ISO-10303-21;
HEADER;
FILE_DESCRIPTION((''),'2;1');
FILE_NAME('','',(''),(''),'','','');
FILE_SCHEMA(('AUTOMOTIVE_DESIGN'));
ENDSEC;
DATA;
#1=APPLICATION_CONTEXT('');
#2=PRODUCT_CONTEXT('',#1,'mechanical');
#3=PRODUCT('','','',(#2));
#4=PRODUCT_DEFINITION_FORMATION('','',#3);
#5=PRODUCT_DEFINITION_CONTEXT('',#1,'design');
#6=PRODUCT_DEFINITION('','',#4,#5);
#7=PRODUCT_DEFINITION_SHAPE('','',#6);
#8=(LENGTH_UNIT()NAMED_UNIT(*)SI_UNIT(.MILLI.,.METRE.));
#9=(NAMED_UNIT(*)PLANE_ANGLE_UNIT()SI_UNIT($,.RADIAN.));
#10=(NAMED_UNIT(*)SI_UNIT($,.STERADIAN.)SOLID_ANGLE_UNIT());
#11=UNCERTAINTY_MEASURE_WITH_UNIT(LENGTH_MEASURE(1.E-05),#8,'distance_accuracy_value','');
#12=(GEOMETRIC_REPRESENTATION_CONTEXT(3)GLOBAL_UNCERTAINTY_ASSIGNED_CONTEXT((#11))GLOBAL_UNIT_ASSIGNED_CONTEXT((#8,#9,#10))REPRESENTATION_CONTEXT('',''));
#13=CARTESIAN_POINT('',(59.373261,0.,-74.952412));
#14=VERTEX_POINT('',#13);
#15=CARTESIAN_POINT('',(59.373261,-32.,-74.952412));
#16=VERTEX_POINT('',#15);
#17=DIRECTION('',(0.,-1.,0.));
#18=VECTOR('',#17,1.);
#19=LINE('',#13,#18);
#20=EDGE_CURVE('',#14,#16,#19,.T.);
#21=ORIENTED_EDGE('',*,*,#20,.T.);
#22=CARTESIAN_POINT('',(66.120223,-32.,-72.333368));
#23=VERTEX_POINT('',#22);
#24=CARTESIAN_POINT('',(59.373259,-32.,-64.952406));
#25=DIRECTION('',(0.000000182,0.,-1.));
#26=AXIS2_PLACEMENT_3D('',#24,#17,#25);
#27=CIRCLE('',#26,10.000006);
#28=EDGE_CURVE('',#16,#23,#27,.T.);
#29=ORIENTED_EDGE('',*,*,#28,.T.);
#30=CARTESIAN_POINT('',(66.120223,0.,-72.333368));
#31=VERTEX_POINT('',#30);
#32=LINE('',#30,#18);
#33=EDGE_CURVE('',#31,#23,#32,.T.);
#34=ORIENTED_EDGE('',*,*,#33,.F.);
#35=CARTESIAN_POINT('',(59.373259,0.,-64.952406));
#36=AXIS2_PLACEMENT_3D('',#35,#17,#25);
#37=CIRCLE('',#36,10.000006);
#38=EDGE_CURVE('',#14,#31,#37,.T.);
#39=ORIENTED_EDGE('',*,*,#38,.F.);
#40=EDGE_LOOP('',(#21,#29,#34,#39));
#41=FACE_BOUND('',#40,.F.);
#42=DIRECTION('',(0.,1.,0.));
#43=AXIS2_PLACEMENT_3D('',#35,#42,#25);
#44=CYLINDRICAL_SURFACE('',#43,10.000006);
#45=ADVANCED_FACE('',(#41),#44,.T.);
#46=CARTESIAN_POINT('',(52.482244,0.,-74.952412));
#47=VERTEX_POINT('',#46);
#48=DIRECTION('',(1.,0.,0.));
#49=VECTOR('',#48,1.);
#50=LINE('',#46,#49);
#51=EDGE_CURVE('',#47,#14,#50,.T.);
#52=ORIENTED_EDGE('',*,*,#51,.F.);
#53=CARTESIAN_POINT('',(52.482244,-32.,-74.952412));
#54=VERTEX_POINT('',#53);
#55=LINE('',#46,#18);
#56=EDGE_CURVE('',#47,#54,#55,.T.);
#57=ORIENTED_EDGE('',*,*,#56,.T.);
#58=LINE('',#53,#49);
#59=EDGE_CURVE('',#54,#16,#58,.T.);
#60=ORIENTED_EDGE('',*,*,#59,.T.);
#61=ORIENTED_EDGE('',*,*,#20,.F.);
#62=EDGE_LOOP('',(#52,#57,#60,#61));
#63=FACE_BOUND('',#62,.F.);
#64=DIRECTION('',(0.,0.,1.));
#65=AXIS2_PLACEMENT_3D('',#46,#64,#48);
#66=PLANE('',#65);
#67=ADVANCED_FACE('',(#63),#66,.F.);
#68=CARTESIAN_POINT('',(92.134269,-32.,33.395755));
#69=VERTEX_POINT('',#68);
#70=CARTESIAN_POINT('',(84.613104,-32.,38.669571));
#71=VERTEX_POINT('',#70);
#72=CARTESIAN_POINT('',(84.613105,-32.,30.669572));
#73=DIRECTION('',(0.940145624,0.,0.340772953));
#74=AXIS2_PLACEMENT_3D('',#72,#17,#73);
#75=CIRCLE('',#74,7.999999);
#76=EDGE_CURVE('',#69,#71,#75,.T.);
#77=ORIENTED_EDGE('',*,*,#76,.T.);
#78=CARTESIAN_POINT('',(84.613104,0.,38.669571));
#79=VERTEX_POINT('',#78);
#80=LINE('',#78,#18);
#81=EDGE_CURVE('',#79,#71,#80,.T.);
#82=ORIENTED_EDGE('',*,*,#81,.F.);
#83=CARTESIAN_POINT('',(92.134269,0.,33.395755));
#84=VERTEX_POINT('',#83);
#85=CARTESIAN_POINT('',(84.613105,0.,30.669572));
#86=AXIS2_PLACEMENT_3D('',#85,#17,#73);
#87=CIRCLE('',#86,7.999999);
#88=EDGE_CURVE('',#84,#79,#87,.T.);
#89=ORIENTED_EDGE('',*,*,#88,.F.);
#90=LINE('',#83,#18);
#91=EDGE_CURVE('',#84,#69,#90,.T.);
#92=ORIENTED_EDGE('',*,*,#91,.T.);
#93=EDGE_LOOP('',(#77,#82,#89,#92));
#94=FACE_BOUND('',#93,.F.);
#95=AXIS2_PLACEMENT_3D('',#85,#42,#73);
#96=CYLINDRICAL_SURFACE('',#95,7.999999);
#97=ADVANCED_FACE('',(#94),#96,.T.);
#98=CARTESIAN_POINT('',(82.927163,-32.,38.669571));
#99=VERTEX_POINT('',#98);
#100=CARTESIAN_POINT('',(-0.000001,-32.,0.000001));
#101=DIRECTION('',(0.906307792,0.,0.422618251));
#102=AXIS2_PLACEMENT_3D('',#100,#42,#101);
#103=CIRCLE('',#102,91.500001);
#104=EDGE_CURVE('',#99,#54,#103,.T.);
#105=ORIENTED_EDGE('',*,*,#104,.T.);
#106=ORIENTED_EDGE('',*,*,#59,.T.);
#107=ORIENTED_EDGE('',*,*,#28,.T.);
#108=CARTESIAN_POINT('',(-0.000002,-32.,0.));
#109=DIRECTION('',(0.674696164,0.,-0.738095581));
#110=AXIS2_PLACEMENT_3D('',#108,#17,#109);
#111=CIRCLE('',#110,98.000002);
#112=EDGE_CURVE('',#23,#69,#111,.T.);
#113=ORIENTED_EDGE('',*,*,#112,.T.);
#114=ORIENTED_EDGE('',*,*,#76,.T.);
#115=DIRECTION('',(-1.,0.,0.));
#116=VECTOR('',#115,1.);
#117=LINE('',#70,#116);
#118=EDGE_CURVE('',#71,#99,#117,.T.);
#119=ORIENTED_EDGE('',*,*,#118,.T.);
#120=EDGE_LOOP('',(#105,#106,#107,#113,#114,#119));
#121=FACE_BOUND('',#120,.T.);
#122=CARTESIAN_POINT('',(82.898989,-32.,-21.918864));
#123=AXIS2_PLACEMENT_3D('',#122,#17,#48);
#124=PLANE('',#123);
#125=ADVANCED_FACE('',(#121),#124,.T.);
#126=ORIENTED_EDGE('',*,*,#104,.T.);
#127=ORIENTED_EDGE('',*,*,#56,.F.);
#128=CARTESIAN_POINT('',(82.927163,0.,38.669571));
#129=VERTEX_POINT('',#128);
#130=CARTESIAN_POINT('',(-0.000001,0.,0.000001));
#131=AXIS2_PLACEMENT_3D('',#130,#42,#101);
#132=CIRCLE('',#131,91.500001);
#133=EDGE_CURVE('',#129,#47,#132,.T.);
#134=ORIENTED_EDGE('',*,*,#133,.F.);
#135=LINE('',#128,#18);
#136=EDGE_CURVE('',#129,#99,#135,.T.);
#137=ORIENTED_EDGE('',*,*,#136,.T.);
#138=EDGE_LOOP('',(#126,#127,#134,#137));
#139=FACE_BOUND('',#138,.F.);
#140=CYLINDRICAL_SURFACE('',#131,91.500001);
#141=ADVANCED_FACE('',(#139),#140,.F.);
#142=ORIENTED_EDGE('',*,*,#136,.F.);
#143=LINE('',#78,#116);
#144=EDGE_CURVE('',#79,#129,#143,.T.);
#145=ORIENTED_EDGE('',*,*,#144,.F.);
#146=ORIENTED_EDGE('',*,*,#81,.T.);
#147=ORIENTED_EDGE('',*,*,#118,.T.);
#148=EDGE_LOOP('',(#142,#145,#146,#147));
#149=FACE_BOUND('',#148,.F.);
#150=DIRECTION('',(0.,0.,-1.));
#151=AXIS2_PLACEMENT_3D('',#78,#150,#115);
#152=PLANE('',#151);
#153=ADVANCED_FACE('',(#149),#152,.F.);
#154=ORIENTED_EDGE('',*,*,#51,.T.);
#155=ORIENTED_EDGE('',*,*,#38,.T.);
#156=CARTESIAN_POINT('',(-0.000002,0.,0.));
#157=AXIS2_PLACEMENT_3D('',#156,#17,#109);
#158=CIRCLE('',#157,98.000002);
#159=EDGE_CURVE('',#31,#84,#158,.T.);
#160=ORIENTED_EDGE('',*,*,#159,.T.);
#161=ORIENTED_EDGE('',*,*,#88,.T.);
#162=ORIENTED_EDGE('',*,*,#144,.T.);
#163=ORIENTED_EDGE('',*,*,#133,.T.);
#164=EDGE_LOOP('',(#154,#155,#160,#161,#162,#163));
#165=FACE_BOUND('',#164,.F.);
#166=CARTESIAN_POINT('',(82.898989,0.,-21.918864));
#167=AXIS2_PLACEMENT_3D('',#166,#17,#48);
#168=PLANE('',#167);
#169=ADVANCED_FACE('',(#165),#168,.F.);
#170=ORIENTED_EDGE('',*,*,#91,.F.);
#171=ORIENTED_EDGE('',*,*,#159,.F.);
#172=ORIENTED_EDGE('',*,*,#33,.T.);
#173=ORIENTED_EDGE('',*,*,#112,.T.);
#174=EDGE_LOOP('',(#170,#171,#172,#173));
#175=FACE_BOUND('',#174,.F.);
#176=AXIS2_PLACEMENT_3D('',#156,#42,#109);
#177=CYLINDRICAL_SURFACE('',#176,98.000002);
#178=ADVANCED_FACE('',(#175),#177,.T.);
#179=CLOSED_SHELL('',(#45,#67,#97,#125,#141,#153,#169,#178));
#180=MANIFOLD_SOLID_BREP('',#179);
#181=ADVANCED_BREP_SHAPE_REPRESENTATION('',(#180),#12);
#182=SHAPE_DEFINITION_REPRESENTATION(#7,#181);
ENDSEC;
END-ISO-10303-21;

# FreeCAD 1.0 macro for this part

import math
import FreeCAD as App
import Part
import Sketcher
from FreeCAD import Vector
Q = App.Units.Quantity

doc = App.newDocument("Part")
params = doc.addObject("Spreadsheet::Sheet", "Params")
for row, (alias, value) in enumerate([
    ("sketch1_radius", "98.000002 mm"),
    ("sketch1_radius2", "7.999999 mm"),
    ("sketch1_radius3", "91.500001 mm"),
    ("pad1_length", "32 mm"),
], start=1):
    params.set(f"A{row}", alias)
    params.set(f"B{row}", "=" + value)
    params.setAlias(f"B{row}", alias)

body = doc.addObject("PartDesign::Body", "Body")

# Sketch on XZ plane
sketch1 = body.newObject("Sketcher::SketchObject", "Sketch")
sketch1.AttachmentSupport = (doc.getObject("XZ_Plane"), [""])
sketch1.MapMode = "FlatFace"
sketch1.addGeometry(Part.ArcOfCircle(Part.Circle(Vector(-0.000001, 0.000001, 0), Vector(0, 0, 1), 91.500001), math.radians(-55), math.radians(24.999999)), False)
sketch1.addGeometry(Part.LineSegment(Vector(52.482244, -74.952412, 0), Vector(59.373261, -74.952412, 0)), False)
sketch1.addGeometry(Part.ArcOfCircle(Part.Circle(Vector(59.373259, -64.952406, 0), Vector(0, 0, 1), 10.000006), math.radians(-89.99999), math.radians(-47.569455)), False)
sketch1.addGeometry(Part.ArcOfCircle(Part.Circle(Vector(-0.000002, 0, 0), Vector(0, 0, 1), 98.000002), math.radians(-47.56944), math.radians(19.923976)), False)
sketch1.addGeometry(Part.ArcOfCircle(Part.Circle(Vector(84.613105, 30.669572, 0), Vector(0, 0, 1), 7.999999), math.radians(19.923974), math.radians(90.000004)), False)
sketch1.addGeometry(Part.LineSegment(Vector(84.613104, 38.669571, 0), Vector(82.927163, 38.669571, 0)), False)
sketch1.addConstraint(Sketcher.Constraint("Coincident", 0, 1, 1, 1))
sketch1.addConstraint(Sketcher.Constraint("Coincident", 1, 2, 2, 1))
sketch1.addConstraint(Sketcher.Constraint("Coincident", 2, 2, 3, 1))
sketch1.addConstraint(Sketcher.Constraint("Coincident", 3, 2, 4, 1))
sketch1.addConstraint(Sketcher.Constraint("Coincident", 4, 2, 5, 1))
sketch1.addConstraint(Sketcher.Constraint("Coincident", 5, 2, 0, 2))
sketch1.addConstraint(Sketcher.Constraint("Horizontal", 1))
sketch1.addConstraint(Sketcher.Constraint("Horizontal", 5))
sketch1.addConstraint(Sketcher.Constraint("Coincident", 0, 3, -1, 1))
sketch1.addConstraint(Sketcher.Constraint("Coincident", 3, 3, -1, 1))
sketch1.addConstraint(Sketcher.Constraint("Radius", 3, Q("98.000002 mm")))
sketch1.addConstraint(Sketcher.Constraint("Radius", 4, Q("7.999999 mm")))
sketch1.addConstraint(Sketcher.Constraint("Radius", 0, Q("91.500001 mm")))
sketch1.addConstraint(Sketcher.Constraint("Radius", 2, Q("10.000006 mm")))
sketch1.addConstraint(Sketcher.Constraint("DistanceX", 5, 2, 5, 1, Q("1.685941 mm")))
sketch1.addConstraint(Sketcher.Constraint("DistanceX", 1, 1, 1, 2, Q("6.891017 mm")))
sketch1.addConstraint(Sketcher.Constraint("DistanceX", -1, 1, 2, 3, Q("59.373259 mm")))
sketch1.addConstraint(Sketcher.Constraint("DistanceY", -1, 1, 4, 3, Q("30.669572 mm")))
sketch1.addConstraint(Sketcher.Constraint("DistanceX", -1, 1, 3, 2, Q("92.134269 mm")))
sketch1.addConstraint(Sketcher.Constraint("DistanceX", 1, 2, 2, 2, Q("6.746962 mm")))
sketch1.setExpression("Constraints[10]", "Params.sketch1_radius")
sketch1.setExpression("Constraints[11]", "Params.sketch1_radius2")
sketch1.setExpression("Constraints[12]", "Params.sketch1_radius3")
pad1 = body.newObject("PartDesign::Pad", "Pad")
pad1.Profile = sketch1
pad1.setExpression("Length", "Params.pad1_length")

doc.recompute()
